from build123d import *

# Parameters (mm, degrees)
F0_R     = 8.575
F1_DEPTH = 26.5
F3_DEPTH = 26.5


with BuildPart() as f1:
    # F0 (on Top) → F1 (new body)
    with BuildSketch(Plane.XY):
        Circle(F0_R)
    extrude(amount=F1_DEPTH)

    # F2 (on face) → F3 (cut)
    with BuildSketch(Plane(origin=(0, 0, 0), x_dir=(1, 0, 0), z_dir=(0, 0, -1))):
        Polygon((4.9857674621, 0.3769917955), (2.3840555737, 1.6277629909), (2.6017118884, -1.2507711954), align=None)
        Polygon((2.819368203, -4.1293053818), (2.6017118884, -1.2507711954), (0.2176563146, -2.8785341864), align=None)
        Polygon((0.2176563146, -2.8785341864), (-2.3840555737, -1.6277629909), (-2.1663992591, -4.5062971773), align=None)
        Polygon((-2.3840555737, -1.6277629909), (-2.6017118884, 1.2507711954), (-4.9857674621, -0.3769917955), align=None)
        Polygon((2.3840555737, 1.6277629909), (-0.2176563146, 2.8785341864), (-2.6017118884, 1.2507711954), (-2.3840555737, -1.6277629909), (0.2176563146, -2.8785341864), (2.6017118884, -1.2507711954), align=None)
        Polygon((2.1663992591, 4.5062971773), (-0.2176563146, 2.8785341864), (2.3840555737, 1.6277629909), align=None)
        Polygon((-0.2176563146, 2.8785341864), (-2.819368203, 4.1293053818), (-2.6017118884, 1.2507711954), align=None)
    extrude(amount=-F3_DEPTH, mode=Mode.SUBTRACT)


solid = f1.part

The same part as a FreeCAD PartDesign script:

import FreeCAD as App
import Part
import Sketcher
from FreeCAD import Vector


def add_polygon(sketch, points):
    """Adds a closed chain of lines whose ends are joined by coincident constraints."""
    first, n = sketch.GeometryCount, len(points)
    for a, b in zip(points, points[1:] + points[:1]):
        sketch.addGeometry(Part.LineSegment(App.Vector(*a, 0), App.Vector(*b, 0)), False)
    for i in range(n):
        sketch.addConstraint(Sketcher.Constraint("Coincident", first + i, 2, first + (i + 1) % n, 1))

doc = App.newDocument("Part")
body = doc.addObject("PartDesign::Body", "Body")

# Sketch on XY plane
sketch1 = body.newObject("Sketcher::SketchObject", "Sketch")
sketch1.AttachmentSupport = (doc.getObject("XY_Plane"), [""])
sketch1.MapMode = "FlatFace"
sketch1.addGeometry(Part.Circle(Vector(0, 0, 0), Vector(0, 0, 1), 9), False)
sketch1.addConstraint([
    Sketcher.Constraint("Coincident", 0, 3, -1, 1),
    Sketcher.Constraint("Diameter", 0, 17.15),
])
pad1 = body.newObject("PartDesign::Pad", "Pad")
pad1.Profile = sketch1
pad1.Length = 26.5

# Sketch on XY plane
sketch2 = body.newObject("Sketcher::SketchObject", "Sketch001")
sketch2.AttachmentSupport = (doc.getObject("XY_Plane"), [""])
sketch2.MapMode = "FlatFace"
add_polygon(sketch2, [(5, -0.4), (2.4, -1.6), (2.2, -4.5), (-0.2, -2.9), (-2.8, -4.1), (-2.6, -1.3), (-5, 0.4), (-2.4, 1.6), (-2.2, 4.5), (0.2, 2.9), (2.8, 4.1), (2.6, 1.3)])  # lines 0-11
sketch2.addConstraint([
    Sketcher.Constraint("Symmetric", 0, 2, 6, 2, -1, 1),
    Sketcher.Constraint("Symmetric", 1, 2, 7, 2, -1, 1),
    Sketcher.Constraint("Symmetric", 2, 2, 8, 2, -1, 1),
    Sketcher.Constraint("Symmetric", 3, 2, 9, 2, -1, 1),
    Sketcher.Constraint("Symmetric", 4, 2, 10, 2, -1, 1),
    Sketcher.Constraint("Symmetric", 5, 2, 11, 2, -1, 1),
    Sketcher.Constraint("Parallel", 0, 3),
    Sketcher.Constraint("Parallel", 1, 4),
    Sketcher.Constraint("Parallel", 2, 5),
    Sketcher.Constraint("Equal", 0, 1),
    Sketcher.Constraint("Equal", 1, 2),
    Sketcher.Constraint("Equal", 2, 3),
    Sketcher.Constraint("Equal", 3, 4),
    Sketcher.Constraint("Equal", 4, 5),
    Sketcher.Constraint("DistanceX", -1, 1, 1, 2, 2.166399),
    Sketcher.Constraint("Distance", 0, 2.886751),
    Sketcher.Constraint("DistanceX", 3, 2, -1, 1, 2.819368),
    Sketcher.Constraint("DistanceX", 4, 2, -1, 1, 2.601712),
])
pocket1 = body.newObject("PartDesign::Pocket", "Pocket")
pocket1.Profile = sketch2
pocket1.Length = 26.5
pocket1.Reversed = True

doc.recompute()
